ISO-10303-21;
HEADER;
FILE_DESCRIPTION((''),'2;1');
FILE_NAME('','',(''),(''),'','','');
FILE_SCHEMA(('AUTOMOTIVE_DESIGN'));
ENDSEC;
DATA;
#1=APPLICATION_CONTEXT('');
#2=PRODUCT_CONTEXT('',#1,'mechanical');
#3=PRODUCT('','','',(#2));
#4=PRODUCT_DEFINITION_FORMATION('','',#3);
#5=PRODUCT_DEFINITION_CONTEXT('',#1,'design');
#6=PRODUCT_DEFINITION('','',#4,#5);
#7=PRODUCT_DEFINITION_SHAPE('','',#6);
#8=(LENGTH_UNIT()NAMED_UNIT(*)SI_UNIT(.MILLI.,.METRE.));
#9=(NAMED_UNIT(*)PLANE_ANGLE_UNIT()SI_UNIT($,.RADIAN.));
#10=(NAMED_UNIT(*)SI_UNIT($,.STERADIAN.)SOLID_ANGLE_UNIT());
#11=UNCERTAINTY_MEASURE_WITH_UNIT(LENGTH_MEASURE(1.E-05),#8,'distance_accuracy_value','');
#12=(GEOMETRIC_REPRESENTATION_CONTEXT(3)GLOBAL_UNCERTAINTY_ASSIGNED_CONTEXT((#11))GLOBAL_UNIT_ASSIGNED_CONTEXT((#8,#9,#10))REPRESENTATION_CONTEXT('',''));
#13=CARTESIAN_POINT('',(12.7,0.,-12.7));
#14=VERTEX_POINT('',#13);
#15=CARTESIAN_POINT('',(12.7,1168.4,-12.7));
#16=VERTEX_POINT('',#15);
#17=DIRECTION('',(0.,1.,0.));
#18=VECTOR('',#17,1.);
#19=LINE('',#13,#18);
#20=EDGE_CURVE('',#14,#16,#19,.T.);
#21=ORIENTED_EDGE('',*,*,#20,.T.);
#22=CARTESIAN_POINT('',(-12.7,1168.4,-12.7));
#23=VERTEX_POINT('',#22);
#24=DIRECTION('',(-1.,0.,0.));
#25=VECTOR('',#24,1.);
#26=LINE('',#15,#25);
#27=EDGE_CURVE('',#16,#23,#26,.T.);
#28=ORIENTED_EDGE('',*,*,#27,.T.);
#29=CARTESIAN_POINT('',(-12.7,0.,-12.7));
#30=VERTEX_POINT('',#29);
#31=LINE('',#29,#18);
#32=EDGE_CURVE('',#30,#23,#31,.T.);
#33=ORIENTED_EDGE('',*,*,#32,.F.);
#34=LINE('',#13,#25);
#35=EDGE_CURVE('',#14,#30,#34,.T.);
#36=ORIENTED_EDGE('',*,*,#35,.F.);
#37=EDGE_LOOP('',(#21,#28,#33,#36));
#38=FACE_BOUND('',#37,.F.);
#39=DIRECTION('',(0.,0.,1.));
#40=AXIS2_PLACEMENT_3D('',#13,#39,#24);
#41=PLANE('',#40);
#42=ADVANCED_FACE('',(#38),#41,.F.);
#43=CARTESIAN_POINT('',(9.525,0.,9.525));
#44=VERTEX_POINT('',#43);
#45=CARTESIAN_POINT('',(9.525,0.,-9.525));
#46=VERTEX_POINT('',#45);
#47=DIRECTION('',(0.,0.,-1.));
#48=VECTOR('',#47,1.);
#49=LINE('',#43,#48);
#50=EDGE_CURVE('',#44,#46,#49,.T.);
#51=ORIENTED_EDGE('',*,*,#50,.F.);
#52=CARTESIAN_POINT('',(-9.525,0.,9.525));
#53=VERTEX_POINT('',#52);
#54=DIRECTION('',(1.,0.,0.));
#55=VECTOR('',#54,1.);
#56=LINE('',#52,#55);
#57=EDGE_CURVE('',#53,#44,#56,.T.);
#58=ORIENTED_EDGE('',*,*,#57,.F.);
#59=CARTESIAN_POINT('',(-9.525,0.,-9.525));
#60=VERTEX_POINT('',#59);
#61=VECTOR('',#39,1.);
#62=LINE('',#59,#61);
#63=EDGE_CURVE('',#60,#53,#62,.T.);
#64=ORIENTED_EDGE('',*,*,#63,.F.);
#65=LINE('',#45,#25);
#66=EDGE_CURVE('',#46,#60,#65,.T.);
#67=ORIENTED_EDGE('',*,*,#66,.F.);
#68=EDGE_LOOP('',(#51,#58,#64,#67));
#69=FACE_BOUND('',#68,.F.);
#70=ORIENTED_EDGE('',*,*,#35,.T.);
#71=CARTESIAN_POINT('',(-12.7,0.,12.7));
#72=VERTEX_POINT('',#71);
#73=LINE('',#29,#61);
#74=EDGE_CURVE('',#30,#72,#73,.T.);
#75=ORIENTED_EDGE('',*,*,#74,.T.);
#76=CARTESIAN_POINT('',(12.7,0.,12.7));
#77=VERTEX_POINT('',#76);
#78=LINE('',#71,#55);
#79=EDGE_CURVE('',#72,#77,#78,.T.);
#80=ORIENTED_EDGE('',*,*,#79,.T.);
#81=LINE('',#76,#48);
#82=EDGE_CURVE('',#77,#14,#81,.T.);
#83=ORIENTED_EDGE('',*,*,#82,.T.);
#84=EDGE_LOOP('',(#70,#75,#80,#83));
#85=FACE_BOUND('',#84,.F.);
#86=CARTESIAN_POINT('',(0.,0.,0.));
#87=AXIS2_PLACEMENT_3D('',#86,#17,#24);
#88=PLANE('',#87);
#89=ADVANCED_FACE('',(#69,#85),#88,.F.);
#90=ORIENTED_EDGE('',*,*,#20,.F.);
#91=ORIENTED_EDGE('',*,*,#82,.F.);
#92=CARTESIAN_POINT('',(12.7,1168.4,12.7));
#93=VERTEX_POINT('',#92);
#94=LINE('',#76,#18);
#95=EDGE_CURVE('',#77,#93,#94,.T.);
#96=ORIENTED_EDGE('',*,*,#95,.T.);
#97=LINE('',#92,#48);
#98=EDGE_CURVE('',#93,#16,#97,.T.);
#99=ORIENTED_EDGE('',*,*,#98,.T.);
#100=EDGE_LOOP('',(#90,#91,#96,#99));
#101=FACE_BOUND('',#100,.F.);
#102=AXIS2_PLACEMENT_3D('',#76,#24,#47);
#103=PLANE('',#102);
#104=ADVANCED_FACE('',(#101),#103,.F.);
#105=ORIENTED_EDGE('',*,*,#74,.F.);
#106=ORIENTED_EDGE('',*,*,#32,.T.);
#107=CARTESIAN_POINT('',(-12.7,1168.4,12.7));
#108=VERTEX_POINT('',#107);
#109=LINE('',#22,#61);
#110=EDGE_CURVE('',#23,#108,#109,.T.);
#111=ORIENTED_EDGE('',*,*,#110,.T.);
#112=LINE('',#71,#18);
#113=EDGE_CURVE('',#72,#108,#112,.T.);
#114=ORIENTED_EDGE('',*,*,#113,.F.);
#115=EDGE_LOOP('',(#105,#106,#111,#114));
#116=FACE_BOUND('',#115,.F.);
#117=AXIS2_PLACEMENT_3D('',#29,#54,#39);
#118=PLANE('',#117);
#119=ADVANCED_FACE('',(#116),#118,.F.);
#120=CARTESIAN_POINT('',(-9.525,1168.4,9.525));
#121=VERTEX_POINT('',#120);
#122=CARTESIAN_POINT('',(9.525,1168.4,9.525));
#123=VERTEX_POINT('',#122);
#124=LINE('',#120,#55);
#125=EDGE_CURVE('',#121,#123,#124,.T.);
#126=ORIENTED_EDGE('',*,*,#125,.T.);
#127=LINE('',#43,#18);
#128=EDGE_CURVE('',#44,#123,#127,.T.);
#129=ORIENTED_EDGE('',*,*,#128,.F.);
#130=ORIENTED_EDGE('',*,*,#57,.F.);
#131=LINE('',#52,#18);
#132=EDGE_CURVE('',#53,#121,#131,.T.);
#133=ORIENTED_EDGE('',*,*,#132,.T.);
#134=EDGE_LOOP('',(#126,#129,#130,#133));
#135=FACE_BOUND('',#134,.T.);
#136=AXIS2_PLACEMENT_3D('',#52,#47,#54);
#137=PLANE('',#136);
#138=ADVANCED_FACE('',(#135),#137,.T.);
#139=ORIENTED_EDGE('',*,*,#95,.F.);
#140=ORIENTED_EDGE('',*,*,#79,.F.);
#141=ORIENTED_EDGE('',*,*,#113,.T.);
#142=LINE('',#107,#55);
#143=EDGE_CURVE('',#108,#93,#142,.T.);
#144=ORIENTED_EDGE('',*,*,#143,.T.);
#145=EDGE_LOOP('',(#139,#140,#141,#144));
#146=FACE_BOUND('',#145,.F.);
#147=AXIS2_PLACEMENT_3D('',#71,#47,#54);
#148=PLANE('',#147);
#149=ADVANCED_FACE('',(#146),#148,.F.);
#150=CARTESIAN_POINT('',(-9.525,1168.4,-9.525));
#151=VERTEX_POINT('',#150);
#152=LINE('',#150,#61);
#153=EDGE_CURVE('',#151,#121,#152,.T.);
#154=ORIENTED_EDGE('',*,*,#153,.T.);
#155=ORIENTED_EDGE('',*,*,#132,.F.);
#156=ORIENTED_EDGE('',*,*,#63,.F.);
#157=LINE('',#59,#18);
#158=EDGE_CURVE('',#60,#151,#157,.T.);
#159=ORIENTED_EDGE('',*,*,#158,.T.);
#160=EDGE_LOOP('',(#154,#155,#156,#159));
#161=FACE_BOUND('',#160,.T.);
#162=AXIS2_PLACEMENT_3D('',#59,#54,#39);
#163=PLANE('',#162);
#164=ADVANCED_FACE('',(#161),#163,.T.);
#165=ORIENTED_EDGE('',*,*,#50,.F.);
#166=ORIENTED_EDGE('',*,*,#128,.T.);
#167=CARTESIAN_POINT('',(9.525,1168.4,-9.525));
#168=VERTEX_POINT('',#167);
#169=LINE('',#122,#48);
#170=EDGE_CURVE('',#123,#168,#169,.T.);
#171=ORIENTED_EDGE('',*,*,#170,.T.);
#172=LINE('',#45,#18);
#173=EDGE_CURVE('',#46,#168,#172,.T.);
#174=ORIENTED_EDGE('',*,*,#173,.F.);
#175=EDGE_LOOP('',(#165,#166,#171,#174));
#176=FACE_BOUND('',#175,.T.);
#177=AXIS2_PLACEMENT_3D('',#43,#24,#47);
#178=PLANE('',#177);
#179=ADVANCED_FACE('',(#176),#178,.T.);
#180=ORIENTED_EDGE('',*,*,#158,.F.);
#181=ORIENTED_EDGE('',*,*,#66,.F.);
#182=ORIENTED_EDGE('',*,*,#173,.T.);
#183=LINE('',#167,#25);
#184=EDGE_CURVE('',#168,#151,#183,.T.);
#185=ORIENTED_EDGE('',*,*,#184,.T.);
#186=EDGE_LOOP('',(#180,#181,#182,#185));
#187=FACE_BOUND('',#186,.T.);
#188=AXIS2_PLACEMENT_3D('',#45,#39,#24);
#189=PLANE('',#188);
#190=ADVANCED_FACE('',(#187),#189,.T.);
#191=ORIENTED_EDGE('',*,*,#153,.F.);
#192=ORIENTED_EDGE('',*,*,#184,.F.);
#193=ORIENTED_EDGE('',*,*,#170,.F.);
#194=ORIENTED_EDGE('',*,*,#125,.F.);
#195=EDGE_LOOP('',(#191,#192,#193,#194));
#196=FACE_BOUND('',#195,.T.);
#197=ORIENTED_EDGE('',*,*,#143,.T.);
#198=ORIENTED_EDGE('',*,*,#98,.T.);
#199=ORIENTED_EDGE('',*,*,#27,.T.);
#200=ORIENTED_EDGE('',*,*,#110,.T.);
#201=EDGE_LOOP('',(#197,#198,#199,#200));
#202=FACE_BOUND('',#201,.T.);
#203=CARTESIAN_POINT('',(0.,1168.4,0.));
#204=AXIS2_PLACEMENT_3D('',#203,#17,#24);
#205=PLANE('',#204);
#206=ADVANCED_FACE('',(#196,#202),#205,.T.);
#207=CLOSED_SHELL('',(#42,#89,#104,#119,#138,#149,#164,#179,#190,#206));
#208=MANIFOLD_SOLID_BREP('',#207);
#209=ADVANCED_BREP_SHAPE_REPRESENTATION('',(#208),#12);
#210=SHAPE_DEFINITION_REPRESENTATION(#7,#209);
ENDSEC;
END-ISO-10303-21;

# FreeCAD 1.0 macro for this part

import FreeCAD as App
import Part
import Sketcher

V = App.Vector
Q = App.Units.Quantity


def add_polygon(sketch, points):
    """Adds a closed chain of lines whose ends are joined by coincident constraints."""
    first, n = sketch.GeometryCount, len(points)
    for a, b in zip(points, points[1:] + points[:1]):
        sketch.addGeometry(Part.LineSegment(App.Vector(*a, 0), App.Vector(*b, 0)), False)
    for i in range(n):
        sketch.addConstraint(Sketcher.Constraint("Coincident", first + i, 2, first + (i + 1) % n, 1))

doc = App.newDocument("Part")
body = doc.addObject("PartDesign::Body", "Body")

# Sketch on XZ plane
sketch1 = doc.addObject("Sketcher::SketchObject", "Sketch")
body.addObject(sketch1)
sketch1.AttachmentSupport = (doc.XZ_Plane, [""])
sketch1.MapMode = "FlatFace"
add_polygon(sketch1, [(-13, -13), (-13, 13), (13, 13), (13, -13)])  # lines 0-3
add_polygon(sketch1, [(10, 10), (-10, 10), (-10, -10), (10, -10)])  # lines 4-7
sketch1.addConstraint([
    Sketcher.Constraint("Vertical", 0),
    Sketcher.Constraint("Horizontal", 1),
    Sketcher.Constraint("Vertical", 2),
    Sketcher.Constraint("Horizontal", 3),
    Sketcher.Constraint("Horizontal", 4),
    Sketcher.Constraint("Vertical", 5),
    Sketcher.Constraint("Horizontal", 6),
    Sketcher.Constraint("Vertical", 7),
    Sketcher.Constraint("Symmetric", 0, 2, 2, 2, -1, 1),
    Sketcher.Constraint("Symmetric", 4, 2, 6, 2, -1, 1),
    Sketcher.Constraint("Equal", 3, 0),
    Sketcher.Constraint("Equal", 6, 5),
    Sketcher.Constraint("DistanceX", 1, 1, 1, 2, Q("1 in")),
    Sketcher.Constraint("DistanceX", 0, 2, 4, 2, Q("0.125 in")),
])
pad1 = doc.addObject("PartDesign::Pad", "Pad")
body.addObject(pad1)
pad1.Profile = sketch1
pad1.Length = Q("46 in")
pad1.Reversed = True

doc.recompute()
